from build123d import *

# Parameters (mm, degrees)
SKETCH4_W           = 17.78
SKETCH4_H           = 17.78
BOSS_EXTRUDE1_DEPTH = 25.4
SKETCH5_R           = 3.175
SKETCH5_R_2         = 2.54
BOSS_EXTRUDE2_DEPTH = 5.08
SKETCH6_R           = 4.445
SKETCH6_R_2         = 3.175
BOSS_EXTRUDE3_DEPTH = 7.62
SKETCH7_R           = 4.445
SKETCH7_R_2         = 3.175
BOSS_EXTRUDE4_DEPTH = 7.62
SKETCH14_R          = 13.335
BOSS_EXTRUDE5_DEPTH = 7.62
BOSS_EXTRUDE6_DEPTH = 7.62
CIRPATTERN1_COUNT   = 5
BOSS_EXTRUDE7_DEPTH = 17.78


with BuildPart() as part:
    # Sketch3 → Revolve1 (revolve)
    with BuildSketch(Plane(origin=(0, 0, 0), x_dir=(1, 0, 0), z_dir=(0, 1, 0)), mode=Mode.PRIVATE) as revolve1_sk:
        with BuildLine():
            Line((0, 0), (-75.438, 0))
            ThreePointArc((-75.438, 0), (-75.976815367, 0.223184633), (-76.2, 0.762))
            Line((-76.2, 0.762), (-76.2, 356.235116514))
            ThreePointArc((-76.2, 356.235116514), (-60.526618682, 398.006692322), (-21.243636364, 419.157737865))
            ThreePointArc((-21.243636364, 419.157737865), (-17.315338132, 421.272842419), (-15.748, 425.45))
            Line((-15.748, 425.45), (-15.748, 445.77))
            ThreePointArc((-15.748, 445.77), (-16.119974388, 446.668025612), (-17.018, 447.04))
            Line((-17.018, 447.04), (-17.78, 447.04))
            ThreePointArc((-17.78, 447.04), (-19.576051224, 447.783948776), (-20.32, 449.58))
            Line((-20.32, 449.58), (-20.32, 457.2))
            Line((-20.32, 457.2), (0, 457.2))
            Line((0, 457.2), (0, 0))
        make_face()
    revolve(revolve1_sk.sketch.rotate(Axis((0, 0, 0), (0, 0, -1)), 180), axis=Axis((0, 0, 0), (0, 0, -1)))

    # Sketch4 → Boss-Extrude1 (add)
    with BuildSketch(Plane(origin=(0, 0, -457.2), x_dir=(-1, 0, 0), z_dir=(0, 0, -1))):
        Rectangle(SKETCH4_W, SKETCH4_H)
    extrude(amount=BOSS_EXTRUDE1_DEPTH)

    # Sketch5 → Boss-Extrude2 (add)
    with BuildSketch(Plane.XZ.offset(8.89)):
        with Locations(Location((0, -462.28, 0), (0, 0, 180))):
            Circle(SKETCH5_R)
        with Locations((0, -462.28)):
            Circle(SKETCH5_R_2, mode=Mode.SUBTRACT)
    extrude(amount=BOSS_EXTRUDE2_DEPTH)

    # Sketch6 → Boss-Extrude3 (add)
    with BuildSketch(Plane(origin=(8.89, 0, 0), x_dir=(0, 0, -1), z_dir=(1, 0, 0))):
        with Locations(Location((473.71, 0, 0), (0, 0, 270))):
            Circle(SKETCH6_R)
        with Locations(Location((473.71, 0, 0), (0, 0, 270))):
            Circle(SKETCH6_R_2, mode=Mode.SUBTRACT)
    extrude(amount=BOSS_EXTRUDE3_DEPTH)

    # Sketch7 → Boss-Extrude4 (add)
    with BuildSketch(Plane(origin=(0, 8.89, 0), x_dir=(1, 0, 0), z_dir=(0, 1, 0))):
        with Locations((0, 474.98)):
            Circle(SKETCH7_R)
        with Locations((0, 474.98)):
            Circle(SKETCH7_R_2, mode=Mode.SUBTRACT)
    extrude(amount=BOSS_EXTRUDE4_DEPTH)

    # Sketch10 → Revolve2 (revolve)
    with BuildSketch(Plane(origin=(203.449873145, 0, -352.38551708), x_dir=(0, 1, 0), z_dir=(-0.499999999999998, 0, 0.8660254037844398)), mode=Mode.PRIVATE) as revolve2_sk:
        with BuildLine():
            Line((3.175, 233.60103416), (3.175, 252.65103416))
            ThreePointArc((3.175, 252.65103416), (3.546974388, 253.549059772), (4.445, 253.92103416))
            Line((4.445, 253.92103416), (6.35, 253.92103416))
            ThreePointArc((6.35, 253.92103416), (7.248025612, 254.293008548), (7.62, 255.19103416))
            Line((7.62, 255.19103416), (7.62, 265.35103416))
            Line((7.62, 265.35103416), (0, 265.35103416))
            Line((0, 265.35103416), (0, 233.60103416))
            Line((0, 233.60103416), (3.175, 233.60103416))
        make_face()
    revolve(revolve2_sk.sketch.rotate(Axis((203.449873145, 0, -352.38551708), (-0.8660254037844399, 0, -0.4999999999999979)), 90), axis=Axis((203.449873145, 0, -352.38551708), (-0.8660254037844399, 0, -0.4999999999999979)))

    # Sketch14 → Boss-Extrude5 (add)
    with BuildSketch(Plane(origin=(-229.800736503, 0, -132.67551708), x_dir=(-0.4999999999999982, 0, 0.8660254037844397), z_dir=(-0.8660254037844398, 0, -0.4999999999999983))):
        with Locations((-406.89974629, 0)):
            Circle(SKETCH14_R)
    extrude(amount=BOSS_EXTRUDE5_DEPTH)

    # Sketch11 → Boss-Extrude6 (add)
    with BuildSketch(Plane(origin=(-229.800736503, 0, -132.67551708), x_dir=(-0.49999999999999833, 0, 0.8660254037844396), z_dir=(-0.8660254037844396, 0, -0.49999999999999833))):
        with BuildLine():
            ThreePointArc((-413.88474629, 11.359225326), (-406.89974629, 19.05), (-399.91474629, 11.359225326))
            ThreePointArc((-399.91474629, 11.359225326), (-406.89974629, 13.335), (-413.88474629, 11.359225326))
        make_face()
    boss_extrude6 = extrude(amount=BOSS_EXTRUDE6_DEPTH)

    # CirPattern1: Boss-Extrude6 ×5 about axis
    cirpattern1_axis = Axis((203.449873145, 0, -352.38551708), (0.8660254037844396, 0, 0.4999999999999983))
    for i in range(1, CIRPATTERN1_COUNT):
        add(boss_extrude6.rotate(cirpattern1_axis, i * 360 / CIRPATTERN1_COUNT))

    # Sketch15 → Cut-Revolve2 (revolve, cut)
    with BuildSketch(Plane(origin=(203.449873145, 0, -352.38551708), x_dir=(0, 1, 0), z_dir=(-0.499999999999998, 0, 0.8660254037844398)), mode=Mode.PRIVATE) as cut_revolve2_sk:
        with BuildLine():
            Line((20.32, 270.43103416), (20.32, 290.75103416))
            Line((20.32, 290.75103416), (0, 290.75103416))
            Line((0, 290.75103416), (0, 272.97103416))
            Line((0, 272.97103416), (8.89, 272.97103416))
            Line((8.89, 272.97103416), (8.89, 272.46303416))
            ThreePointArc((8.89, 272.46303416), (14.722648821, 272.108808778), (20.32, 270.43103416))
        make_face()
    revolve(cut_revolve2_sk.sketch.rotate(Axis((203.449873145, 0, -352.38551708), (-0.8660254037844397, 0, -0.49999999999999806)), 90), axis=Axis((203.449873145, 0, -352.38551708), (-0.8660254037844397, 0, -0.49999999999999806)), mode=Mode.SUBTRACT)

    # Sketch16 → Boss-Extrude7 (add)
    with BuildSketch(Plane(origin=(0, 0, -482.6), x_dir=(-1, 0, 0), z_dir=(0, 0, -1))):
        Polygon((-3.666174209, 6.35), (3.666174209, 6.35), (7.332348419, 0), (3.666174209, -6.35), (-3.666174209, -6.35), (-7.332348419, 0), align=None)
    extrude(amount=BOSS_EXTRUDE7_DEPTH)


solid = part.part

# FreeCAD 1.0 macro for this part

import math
import FreeCAD as App
import Part
import Sketcher

V = App.Vector
Q = App.Units.Quantity

doc = App.newDocument("Part")
body = doc.addObject("PartDesign::Body", "Body")

# Sketch on XZ plane
sketch1 = doc.addObject("Sketcher::SketchObject", "Sketch")
body.addObject(sketch1)
sketch1.AttachmentSupport = (doc.XZ_Plane, [""])
sketch1.MapMode = "FlatFace"
sketch1.addGeometry([
    Part.LineSegment(V(-75.4, 0, 0), V(0, 0, 0)),  # 0
    Part.LineSegment(V(0, 0, 0), V(0, -457.2, 0)),  # 1
    Part.LineSegment(V(0, -457.2, 0), V(-20.3, -457.2, 0)),  # 2
    Part.LineSegment(V(-20.3, -457.2, 0), V(-20.3, -449.6, 0)),  # 3
    Part.ArcOfCircle(Part.Circle(V(-17.8, -449.6, 0), V(0, 0, 1), 2.5), math.radians(90), math.radians(180)),  # 4
    Part.LineSegment(V(-17.8, -447, 0), V(-17, -447, 0)),  # 5
    Part.ArcOfCircle(Part.Circle(V(-17, -445.8, 0), V(0, 0, 1), 1.3), math.radians(-90), math.radians(0)),  # 6
    Part.LineSegment(V(-15.7, -445.8, 0), V(-15.7, -425.4, 0)),  # 7
    Part.ArcOfCircle(Part.Circle(V(-22.1, -425.4, 0), V(0, 0, 1), 6.3), math.radians(0), math.radians(82)),  # 8
    Part.ArcOfCircle(Part.Circle(V(-12.7, -356.2, 0), V(0, 0, 1), 63.5), math.radians(180), math.radians(262)),  # 9
    Part.LineSegment(V(-76.2, -356.2, 0), V(-76.2, -0.8, 0)),  # 10
    Part.ArcOfCircle(Part.Circle(V(-75.4, -0.8, 0), V(0, 0, 1), 0.8), math.radians(90), math.radians(180)),  # 11
], False)
sketch1.addConstraint([
    Sketcher.Constraint("Coincident", 0, 2, 1, 1),
    Sketcher.Constraint("Coincident", 1, 2, 2, 1),
    Sketcher.Constraint("Coincident", 2, 2, 3, 1),
    Sketcher.Constraint("Tangent", 3, 2, 4, 2),
    Sketcher.Constraint("Tangent", 4, 1, 5, 1),
    Sketcher.Constraint("Tangent", 5, 2, 6, 1),
    Sketcher.Constraint("Tangent", 6, 2, 7, 1),
    Sketcher.Constraint("Tangent", 7, 2, 8, 1),
    Sketcher.Constraint("Tangent", 8, 2, 9, 2),
    Sketcher.Constraint("Tangent", 9, 1, 10, 1),
    Sketcher.Constraint("Tangent", 10, 2, 11, 2),
    Sketcher.Constraint("Tangent", 11, 1, 0, 1),
    Sketcher.Constraint("Horizontal", 0),
    Sketcher.Constraint("Vertical", 1),
    Sketcher.Constraint("Horizontal", 2),
    Sketcher.Constraint("Vertical", 3),
    Sketcher.Constraint("Horizontal", 5),
    Sketcher.Constraint("Vertical", 7),
    Sketcher.Constraint("Vertical", 10),
    Sketcher.Constraint("Coincident", 0, 2, -1, 1),
    Sketcher.Constraint("Equal", 2, 7),
    Sketcher.Constraint("Radius", 4, Q("0.1 in")),
    Sketcher.Constraint("Radius", 9, Q("2.5 in")),
    Sketcher.Constraint("DistanceY", 1, 2, 1, 1, Q("18 in")),
    Sketcher.Constraint("Radius", 6, Q("0.05 in")),
    Sketcher.Constraint("Radius", 8, Q("0.25 in")),
    Sketcher.Constraint("Radius", 11, Q("0.03 in")),
    Sketcher.Constraint("DistanceX", 2, 2, 2, 1, Q("0.8 in")),
    Sketcher.Constraint("DistanceY", 3, 1, 3, 2, Q("0.3 in")),
    Sketcher.Constraint("DistanceX", 9, 1, -1, 1, Q("3 in")),
    Sketcher.Constraint("DistanceX", 5, 1, 5, 2, Q("0.03 in")),
])
revolution = doc.addObject("PartDesign::Revolution", "Revolution")
body.addObject(revolution)
revolution.Profile = sketch1
revolution.ReferenceAxis = (sketch1, ["V_Axis"])
revolution.Angle = 360

# Sketch on XY plane
sketch2 = doc.addObject("Sketcher::SketchObject", "Sketch001")
body.addObject(sketch2)
sketch2.AttachmentSupport = (doc.XY_Plane, [""])
sketch2.MapMode = "FlatFace"
sketch2.AttachmentOffset = App.Placement(V(0, 0, -18 * 25.4), App.Rotation())
sketch2.addGeometry([
    Part.LineSegment(V(9, 9, 0), V(9, -9, 0)),
    Part.LineSegment(V(9, -9, 0), V(-9, -9, 0)),
    Part.LineSegment(V(-9, -9, 0), V(-9, 9, 0)),
    Part.LineSegment(V(-9, 9, 0), V(9, 9, 0)),
], False)
sketch2.addConstraint([
    Sketcher.Constraint("Coincident", 0, 2, 1, 1),
    Sketcher.Constraint("Coincident", 1, 2, 2, 1),
    Sketcher.Constraint("Coincident", 2, 2, 3, 1),
    Sketcher.Constraint("Coincident", 3, 2, 0, 1),
    Sketcher.Constraint("Vertical", 0),
    Sketcher.Constraint("Horizontal", 1),
    Sketcher.Constraint("Vertical", 2),
    Sketcher.Constraint("Horizontal", 3),
    Sketcher.Constraint("Symmetric", 0, 2, 2, 2, -1, 1),
    Sketcher.Constraint("Equal", 3, 0),
    Sketcher.Constraint("DistanceX", 1, 2, 1, 1, Q("0.7 in")),
])
pad1 = doc.addObject("PartDesign::Pad", "Pad")
body.addObject(pad1)
pad1.Profile = sketch2
pad1.Length = Q("1 in")
pad1.Reversed = True

# Sketch on XZ plane
sketch3 = doc.addObject("Sketcher::SketchObject", "Sketch002")
body.addObject(sketch3)
sketch3.AttachmentSupport = (doc.XZ_Plane, [""])
sketch3.MapMode = "FlatFace"
sketch3.AttachmentOffset = App.Placement(V(0, 0, 0.35 * 25.4), App.Rotation())
sketch3.addGeometry([
    Part.Circle(V(0, -462.3, 0), V(0, 0, 1), 3.2),
    Part.Circle(V(0, -462.3, 0), V(0, 0, 1), 2.5),
], False)
sketch3.addConstraint([
    Sketcher.Constraint("Coincident", 1, 3, 0, 3),
    Sketcher.Constraint("PointOnObject", 0, 3, -2),
    Sketcher.Constraint("Diameter", 1, Q("0.2 in")),
    Sketcher.Constraint("Diameter", 0, Q("0.25 in")),
    Sketcher.Constraint("DistanceY", 0, 3, -1, 1, Q("18.2 in")),
])
pad2 = doc.addObject("PartDesign::Pad", "Pad001")
body.addObject(pad2)
pad2.Profile = sketch3
pad2.Length = Q("0.2 in")

# Sketch on YZ plane
sketch4 = doc.addObject("Sketcher::SketchObject", "Sketch003")
body.addObject(sketch4)
sketch4.AttachmentSupport = (doc.YZ_Plane, [""])
sketch4.MapMode = "FlatFace"
sketch4.AttachmentOffset = App.Placement(V(0, 0, 0.35 * 25.4), App.Rotation())
sketch4.addGeometry([
    Part.Circle(V(0, -473.7, 0), V(0, 0, 1), 4.4),
    Part.Circle(V(0, -473.7, 0), V(0, 0, 1), 3.2),
], False)
sketch4.addConstraint([
    Sketcher.Constraint("Coincident", 1, 3, 0, 3),
    Sketcher.Constraint("PointOnObject", 0, 3, -2),
    Sketcher.Constraint("Diameter", 0, Q("0.35 in")),
    Sketcher.Constraint("Diameter", 1, Q("0.25 in")),
    Sketcher.Constraint("DistanceY", 0, 3, -1, 1, Q("18.65 in")),
])
pad3 = doc.addObject("PartDesign::Pad", "Pad002")
body.addObject(pad3)
pad3.Profile = sketch4
pad3.Length = Q("0.3 in")

# Sketch on XZ plane
sketch5 = doc.addObject("Sketcher::SketchObject", "Sketch004")
body.addObject(sketch5)
sketch5.AttachmentSupport = (doc.XZ_Plane, [""])
sketch5.MapMode = "FlatFace"
sketch5.AttachmentOffset = App.Placement(V(0, 0, -0.35 * 25.4), App.Rotation())
sketch5.addGeometry([
    Part.Circle(V(0, -475, 0), V(0, 0, 1), 4.4),
    Part.Circle(V(0, -475, 0), V(0, 0, 1), 3.2),
], False)
sketch5.addConstraint([
    Sketcher.Constraint("Coincident", 1, 3, 0, 3),
    Sketcher.Constraint("PointOnObject", 0, 3, -2),
    Sketcher.Constraint("Diameter", 0, Q("0.35 in")),
    Sketcher.Constraint("Diameter", 1, Q("0.25 in")),
    Sketcher.Constraint("DistanceY", 0, 3, -1, 1, Q("18.7 in")),
])
pad4 = doc.addObject("PartDesign::Pad", "Pad003")
body.addObject(pad4)
pad4.Profile = sketch5
pad4.Length = Q("0.3 in")
pad4.Reversed = True

# Sketch on an angled plane
sketch6 = doc.addObject("Sketcher::SketchObject", "Sketch005")
body.addObject(sketch6)
sketch6.Placement = App.Placement(V(203.449873, 0, -352.385517), App.Rotation(V(0, 1, 0), V(-0.866025404, 0, -0.5), V(-0.5, 0, 0.866025404), "ZXY"))
sketch6.addGeometry([
    Part.LineSegment(V(3.2, 233.6, 0), V(3.2, 252.7, 0)),  # 0
    Part.ArcOfCircle(Part.Circle(V(4.4, 252.7, 0), V(0, 0, 1), 1.3), math.radians(90), math.radians(180)),  # 1
    Part.LineSegment(V(4.4, 253.9, 0), V(6.3, 253.9, 0)),  # 2
    Part.ArcOfCircle(Part.Circle(V(6.3, 255.2, 0), V(0, 0, 1), 1.3), math.radians(-90), math.radians(0)),  # 3
    Part.LineSegment(V(7.6, 255.2, 0), V(7.6, 265.4, 0)),  # 4
    Part.LineSegment(V(7.6, 265.4, 0), V(0, 265.4, 0)),  # 5
    Part.LineSegment(V(0, 265.4, 0), V(0, 233.6, 0)),  # 6
    Part.LineSegment(V(0, 233.6, 0), V(3.2, 233.6, 0)),  # 7
], False)
sketch6.addConstraint([
    Sketcher.Constraint("Tangent", 0, 2, 1, 2),
    Sketcher.Constraint("Tangent", 1, 1, 2, 1),
    Sketcher.Constraint("Tangent", 2, 2, 3, 1),
    Sketcher.Constraint("Tangent", 3, 2, 4, 1),
    Sketcher.Constraint("Coincident", 4, 2, 5, 1),
    Sketcher.Constraint("Coincident", 5, 2, 6, 1),
    Sketcher.Constraint("Coincident", 6, 2, 7, 1),
    Sketcher.Constraint("Coincident", 7, 2, 0, 1),
    Sketcher.Constraint("Vertical", 0),
    Sketcher.Constraint("Horizontal", 2),
    Sketcher.Constraint("Vertical", 4),
    Sketcher.Constraint("Horizontal", 5),
    Sketcher.Constraint("Vertical", 6),
    Sketcher.Constraint("Horizontal", 7),
    Sketcher.Constraint("Equal", 1, 3),
    Sketcher.Constraint("PointOnObject", 5, 2, -2),
    Sketcher.Constraint("Radius", 1, Q("0.05 in")),
    Sketcher.Constraint("DistanceX", 5, 2, 5, 1, Q("0.3 in")),
    Sketcher.Constraint("DistanceY", 4, 1, 4, 2, Q("0.4 in")),
    Sketcher.Constraint("DistanceY", 0, 1, 0, 2, Q("0.75 in")),
    Sketcher.Constraint("DistanceX", 2, 1, 2, 2, Q("0.075 in")),
    Sketcher.Constraint("DistanceY", -1, 1, 1, 3, Q("252.651034 mm")),
])
revolution2 = doc.addObject("PartDesign::Revolution", "Revolution001")
body.addObject(revolution2)
revolution2.Profile = sketch6
revolution2.ReferenceAxis = (sketch6, ["V_Axis"])
revolution2.Angle = 360

# Sketch on an angled plane
sketch7 = doc.addObject("Sketcher::SketchObject", "Sketch006")
body.addObject(sketch7)
sketch7.Placement = App.Placement(V(-229.800737, 0, -132.675517), App.Rotation(V(-0.5, 0, 0.866025404), V(0, 1, 0), V(-0.866025404, 0, -0.5), "ZXY"))
sketch7.addGeometry(Part.Circle(V(-407, 0, 0), V(0, 0, 1), 13), False)
sketch7.addConstraint([
    Sketcher.Constraint("PointOnObject", 0, 3, -1),
    Sketcher.Constraint("Diameter", 0, Q("1.05 in")),
    Sketcher.Constraint("DistanceX", 0, 3, -1, 1, Q("406.899746 mm")),
])
pad5 = doc.addObject("PartDesign::Pad", "Pad004")
body.addObject(pad5)
pad5.Profile = sketch7
pad5.Length = Q("0.3 in")

# Sketch on an angled plane
sketch8 = doc.addObject("Sketcher::SketchObject", "Sketch007")
body.addObject(sketch8)
sketch8.Placement = App.Placement(V(-229.800737, 0, -132.675517), App.Rotation(V(-0.5, 0, 0.866025404), V(0, 1, 0), V(-0.866025404, 0, -0.5), "ZXY"))
sketch8.addGeometry([
    Part.ArcOfCircle(Part.Circle(V(-407, 12, 0), V(0, 0, 1), 7), math.radians(-6), math.radians(186)),
    Part.ArcOfCircle(Part.Circle(V(-407, 0, 0), V(0, 0, 1), 13), math.radians(58), math.radians(122)),
], False)
sketch8.addConstraint([
    Sketcher.Constraint("Coincident", 0, 1, 1, 1),
    Sketcher.Constraint("Coincident", 1, 2, 0, 2),
    Sketcher.Constraint("PointOnObject", 1, 3, -1),
    Sketcher.Constraint("Horizontal", 0, 1, 1, 2),
    Sketcher.Constraint("Radius", 1, Q("0.525 in")),
    Sketcher.Constraint("DistanceX", 1, 2, 0, 1, Q("0.55 in")),
    Sketcher.Constraint("Radius", 0, Q("7.017384 mm")),
    Sketcher.Constraint("DistanceX", 0, 3, -1, 1, Q("406.899746 mm")),
])
pad6 = doc.addObject("PartDesign::Pad", "Pad005")
body.addObject(pad6)
pad6.Profile = sketch8
pad6.Length = Q("0.3 in")
doc.recompute()

datumline = doc.addObject("PartDesign::Line", "DatumLine")
body.addObject(datumline)
datumline.Placement = App.Placement(V(203.449873, 0, -352.385517), App.Rotation(V(0, 0, 1), V(0.866025404, 0, 0.5)))
polarpattern = doc.addObject("PartDesign::PolarPattern", "PolarPattern")
body.addObject(polarpattern)
polarpattern.Originals = [pad6]
polarpattern.Axis = (datumline, [""])
polarpattern.Angle = 360
polarpattern.Occurrences = 5
body.Tip = polarpattern

# Sketch on an angled plane
sketch9 = doc.addObject("Sketcher::SketchObject", "Sketch008")
body.addObject(sketch9)
sketch9.Placement = App.Placement(V(203.449873, 0, -352.385517), App.Rotation(V(0, 1, 0), V(-0.866025404, 0, -0.5), V(-0.5, 0, 0.866025404), "ZXY"))
sketch9.addGeometry([
    Part.LineSegment(V(20.3, 270.4, 0), V(20.3, 290.8, 0)),  # 0
    Part.LineSegment(V(20.3, 290.8, 0), V(0, 290.8, 0)),  # 1
    Part.LineSegment(V(0, 290.8, 0), V(0, 273, 0)),  # 2
    Part.LineSegment(V(0, 273, 0), V(8.9, 273, 0)),  # 3
    Part.LineSegment(V(8.9, 273, 0), V(8.9, 272.5, 0)),  # 4
    Part.ArcOfCircle(Part.Circle(V(10.3, 247.1, 0), V(0, 0, 1), 25.4), math.radians(67), math.radians(93)),  # 5
], False)
sketch9.addConstraint([
    Sketcher.Constraint("Coincident", 0, 2, 1, 1),
    Sketcher.Constraint("Coincident", 1, 2, 2, 1),
    Sketcher.Constraint("Coincident", 2, 2, 3, 1),
    Sketcher.Constraint("Coincident", 3, 2, 4, 1),
    Sketcher.Constraint("Coincident", 4, 2, 5, 2),
    Sketcher.Constraint("Coincident", 5, 1, 0, 1),
    Sketcher.Constraint("Vertical", 0),
    Sketcher.Constraint("Horizontal", 1),
    Sketcher.Constraint("Vertical", 2),
    Sketcher.Constraint("Horizontal", 3),
    Sketcher.Constraint("Vertical", 4),
    Sketcher.Constraint("PointOnObject", 1, 2, -2),
    Sketcher.Constraint("Equal", 1, 0),
    Sketcher.Constraint("Radius", 5, Q("1 in")),
    Sketcher.Constraint("DistanceX", 1, 2, 1, 1, Q("0.8 in")),
    Sketcher.Constraint("DistanceY", 2, 2, 2, 1, Q("0.7 in")),
    Sketcher.Constraint("DistanceX", 3, 1, 3, 2, Q("0.35 in")),
    Sketcher.Constraint("DistanceY", 4, 2, 4, 1, Q("0.02 in")),
    Sketcher.Constraint("DistanceY", -1, 1, 5, 3, Q("247.100921 mm")),
])
groove = doc.addObject("PartDesign::Groove", "Groove")
body.addObject(groove)
groove.Profile = sketch9
groove.ReferenceAxis = (sketch9, ["V_Axis"])
groove.Angle = 360

# Sketch on XY plane
sketch10 = doc.addObject("Sketcher::SketchObject", "Sketch009")
body.addObject(sketch10)
sketch10.AttachmentSupport = (doc.XY_Plane, [""])
sketch10.MapMode = "FlatFace"
sketch10.AttachmentOffset = App.Placement(V(0, 0, -19 * 25.4), App.Rotation())
sketch10.addGeometry([
    Part.LineSegment(V(-4, 6, 0), V(4, 6, 0)),  # 0
    Part.LineSegment(V(4, 6, 0), V(7, 0, 0)),  # 1
    Part.LineSegment(V(7, 0, 0), V(4, -6, 0)),  # 2
    Part.LineSegment(V(4, -6, 0), V(-4, -6, 0)),  # 3
    Part.LineSegment(V(-4, -6, 0), V(-7, 0, 0)),  # 4
    Part.LineSegment(V(-7, 0, 0), V(-4, 6, 0)),  # 5
], False)
sketch10.addConstraint([
    Sketcher.Constraint("Coincident", 0, 2, 1, 1),
    Sketcher.Constraint("Coincident", 1, 2, 2, 1),
    Sketcher.Constraint("Coincident", 2, 2, 3, 1),
    Sketcher.Constraint("Coincident", 3, 2, 4, 1),
    Sketcher.Constraint("Coincident", 4, 2, 5, 1),
    Sketcher.Constraint("Coincident", 5, 2, 0, 1),
    Sketcher.Constraint("Horizontal", 0),
    Sketcher.Constraint("Horizontal", 3),
    Sketcher.Constraint("Symmetric", 0, 2, 3, 2, -1, 1),
    Sketcher.Constraint("Symmetric", 1, 2, 4, 2, -1, 1),
    Sketcher.Constraint("PointOnObject", 1, 2, -1),
    Sketcher.Constraint("Parallel", 2, 5),
    Sketcher.Constraint("Vertical", 0, 2, 2, 2),
    Sketcher.Constraint("Angle", 1, Q("-60 deg")),
    Sketcher.Constraint("DistanceY", 2, 2, 0, 2, Q("0.5 in")),
    Sketcher.Constraint("DistanceX", 0, 1, 0, 2, Q("7.332348 mm")),
])
pad7 = doc.addObject("PartDesign::Pad", "Pad006")
body.addObject(pad7)
pad7.Profile = sketch10
pad7.Length = Q("0.7 in")
pad7.Reversed = True

doc.recompute()
